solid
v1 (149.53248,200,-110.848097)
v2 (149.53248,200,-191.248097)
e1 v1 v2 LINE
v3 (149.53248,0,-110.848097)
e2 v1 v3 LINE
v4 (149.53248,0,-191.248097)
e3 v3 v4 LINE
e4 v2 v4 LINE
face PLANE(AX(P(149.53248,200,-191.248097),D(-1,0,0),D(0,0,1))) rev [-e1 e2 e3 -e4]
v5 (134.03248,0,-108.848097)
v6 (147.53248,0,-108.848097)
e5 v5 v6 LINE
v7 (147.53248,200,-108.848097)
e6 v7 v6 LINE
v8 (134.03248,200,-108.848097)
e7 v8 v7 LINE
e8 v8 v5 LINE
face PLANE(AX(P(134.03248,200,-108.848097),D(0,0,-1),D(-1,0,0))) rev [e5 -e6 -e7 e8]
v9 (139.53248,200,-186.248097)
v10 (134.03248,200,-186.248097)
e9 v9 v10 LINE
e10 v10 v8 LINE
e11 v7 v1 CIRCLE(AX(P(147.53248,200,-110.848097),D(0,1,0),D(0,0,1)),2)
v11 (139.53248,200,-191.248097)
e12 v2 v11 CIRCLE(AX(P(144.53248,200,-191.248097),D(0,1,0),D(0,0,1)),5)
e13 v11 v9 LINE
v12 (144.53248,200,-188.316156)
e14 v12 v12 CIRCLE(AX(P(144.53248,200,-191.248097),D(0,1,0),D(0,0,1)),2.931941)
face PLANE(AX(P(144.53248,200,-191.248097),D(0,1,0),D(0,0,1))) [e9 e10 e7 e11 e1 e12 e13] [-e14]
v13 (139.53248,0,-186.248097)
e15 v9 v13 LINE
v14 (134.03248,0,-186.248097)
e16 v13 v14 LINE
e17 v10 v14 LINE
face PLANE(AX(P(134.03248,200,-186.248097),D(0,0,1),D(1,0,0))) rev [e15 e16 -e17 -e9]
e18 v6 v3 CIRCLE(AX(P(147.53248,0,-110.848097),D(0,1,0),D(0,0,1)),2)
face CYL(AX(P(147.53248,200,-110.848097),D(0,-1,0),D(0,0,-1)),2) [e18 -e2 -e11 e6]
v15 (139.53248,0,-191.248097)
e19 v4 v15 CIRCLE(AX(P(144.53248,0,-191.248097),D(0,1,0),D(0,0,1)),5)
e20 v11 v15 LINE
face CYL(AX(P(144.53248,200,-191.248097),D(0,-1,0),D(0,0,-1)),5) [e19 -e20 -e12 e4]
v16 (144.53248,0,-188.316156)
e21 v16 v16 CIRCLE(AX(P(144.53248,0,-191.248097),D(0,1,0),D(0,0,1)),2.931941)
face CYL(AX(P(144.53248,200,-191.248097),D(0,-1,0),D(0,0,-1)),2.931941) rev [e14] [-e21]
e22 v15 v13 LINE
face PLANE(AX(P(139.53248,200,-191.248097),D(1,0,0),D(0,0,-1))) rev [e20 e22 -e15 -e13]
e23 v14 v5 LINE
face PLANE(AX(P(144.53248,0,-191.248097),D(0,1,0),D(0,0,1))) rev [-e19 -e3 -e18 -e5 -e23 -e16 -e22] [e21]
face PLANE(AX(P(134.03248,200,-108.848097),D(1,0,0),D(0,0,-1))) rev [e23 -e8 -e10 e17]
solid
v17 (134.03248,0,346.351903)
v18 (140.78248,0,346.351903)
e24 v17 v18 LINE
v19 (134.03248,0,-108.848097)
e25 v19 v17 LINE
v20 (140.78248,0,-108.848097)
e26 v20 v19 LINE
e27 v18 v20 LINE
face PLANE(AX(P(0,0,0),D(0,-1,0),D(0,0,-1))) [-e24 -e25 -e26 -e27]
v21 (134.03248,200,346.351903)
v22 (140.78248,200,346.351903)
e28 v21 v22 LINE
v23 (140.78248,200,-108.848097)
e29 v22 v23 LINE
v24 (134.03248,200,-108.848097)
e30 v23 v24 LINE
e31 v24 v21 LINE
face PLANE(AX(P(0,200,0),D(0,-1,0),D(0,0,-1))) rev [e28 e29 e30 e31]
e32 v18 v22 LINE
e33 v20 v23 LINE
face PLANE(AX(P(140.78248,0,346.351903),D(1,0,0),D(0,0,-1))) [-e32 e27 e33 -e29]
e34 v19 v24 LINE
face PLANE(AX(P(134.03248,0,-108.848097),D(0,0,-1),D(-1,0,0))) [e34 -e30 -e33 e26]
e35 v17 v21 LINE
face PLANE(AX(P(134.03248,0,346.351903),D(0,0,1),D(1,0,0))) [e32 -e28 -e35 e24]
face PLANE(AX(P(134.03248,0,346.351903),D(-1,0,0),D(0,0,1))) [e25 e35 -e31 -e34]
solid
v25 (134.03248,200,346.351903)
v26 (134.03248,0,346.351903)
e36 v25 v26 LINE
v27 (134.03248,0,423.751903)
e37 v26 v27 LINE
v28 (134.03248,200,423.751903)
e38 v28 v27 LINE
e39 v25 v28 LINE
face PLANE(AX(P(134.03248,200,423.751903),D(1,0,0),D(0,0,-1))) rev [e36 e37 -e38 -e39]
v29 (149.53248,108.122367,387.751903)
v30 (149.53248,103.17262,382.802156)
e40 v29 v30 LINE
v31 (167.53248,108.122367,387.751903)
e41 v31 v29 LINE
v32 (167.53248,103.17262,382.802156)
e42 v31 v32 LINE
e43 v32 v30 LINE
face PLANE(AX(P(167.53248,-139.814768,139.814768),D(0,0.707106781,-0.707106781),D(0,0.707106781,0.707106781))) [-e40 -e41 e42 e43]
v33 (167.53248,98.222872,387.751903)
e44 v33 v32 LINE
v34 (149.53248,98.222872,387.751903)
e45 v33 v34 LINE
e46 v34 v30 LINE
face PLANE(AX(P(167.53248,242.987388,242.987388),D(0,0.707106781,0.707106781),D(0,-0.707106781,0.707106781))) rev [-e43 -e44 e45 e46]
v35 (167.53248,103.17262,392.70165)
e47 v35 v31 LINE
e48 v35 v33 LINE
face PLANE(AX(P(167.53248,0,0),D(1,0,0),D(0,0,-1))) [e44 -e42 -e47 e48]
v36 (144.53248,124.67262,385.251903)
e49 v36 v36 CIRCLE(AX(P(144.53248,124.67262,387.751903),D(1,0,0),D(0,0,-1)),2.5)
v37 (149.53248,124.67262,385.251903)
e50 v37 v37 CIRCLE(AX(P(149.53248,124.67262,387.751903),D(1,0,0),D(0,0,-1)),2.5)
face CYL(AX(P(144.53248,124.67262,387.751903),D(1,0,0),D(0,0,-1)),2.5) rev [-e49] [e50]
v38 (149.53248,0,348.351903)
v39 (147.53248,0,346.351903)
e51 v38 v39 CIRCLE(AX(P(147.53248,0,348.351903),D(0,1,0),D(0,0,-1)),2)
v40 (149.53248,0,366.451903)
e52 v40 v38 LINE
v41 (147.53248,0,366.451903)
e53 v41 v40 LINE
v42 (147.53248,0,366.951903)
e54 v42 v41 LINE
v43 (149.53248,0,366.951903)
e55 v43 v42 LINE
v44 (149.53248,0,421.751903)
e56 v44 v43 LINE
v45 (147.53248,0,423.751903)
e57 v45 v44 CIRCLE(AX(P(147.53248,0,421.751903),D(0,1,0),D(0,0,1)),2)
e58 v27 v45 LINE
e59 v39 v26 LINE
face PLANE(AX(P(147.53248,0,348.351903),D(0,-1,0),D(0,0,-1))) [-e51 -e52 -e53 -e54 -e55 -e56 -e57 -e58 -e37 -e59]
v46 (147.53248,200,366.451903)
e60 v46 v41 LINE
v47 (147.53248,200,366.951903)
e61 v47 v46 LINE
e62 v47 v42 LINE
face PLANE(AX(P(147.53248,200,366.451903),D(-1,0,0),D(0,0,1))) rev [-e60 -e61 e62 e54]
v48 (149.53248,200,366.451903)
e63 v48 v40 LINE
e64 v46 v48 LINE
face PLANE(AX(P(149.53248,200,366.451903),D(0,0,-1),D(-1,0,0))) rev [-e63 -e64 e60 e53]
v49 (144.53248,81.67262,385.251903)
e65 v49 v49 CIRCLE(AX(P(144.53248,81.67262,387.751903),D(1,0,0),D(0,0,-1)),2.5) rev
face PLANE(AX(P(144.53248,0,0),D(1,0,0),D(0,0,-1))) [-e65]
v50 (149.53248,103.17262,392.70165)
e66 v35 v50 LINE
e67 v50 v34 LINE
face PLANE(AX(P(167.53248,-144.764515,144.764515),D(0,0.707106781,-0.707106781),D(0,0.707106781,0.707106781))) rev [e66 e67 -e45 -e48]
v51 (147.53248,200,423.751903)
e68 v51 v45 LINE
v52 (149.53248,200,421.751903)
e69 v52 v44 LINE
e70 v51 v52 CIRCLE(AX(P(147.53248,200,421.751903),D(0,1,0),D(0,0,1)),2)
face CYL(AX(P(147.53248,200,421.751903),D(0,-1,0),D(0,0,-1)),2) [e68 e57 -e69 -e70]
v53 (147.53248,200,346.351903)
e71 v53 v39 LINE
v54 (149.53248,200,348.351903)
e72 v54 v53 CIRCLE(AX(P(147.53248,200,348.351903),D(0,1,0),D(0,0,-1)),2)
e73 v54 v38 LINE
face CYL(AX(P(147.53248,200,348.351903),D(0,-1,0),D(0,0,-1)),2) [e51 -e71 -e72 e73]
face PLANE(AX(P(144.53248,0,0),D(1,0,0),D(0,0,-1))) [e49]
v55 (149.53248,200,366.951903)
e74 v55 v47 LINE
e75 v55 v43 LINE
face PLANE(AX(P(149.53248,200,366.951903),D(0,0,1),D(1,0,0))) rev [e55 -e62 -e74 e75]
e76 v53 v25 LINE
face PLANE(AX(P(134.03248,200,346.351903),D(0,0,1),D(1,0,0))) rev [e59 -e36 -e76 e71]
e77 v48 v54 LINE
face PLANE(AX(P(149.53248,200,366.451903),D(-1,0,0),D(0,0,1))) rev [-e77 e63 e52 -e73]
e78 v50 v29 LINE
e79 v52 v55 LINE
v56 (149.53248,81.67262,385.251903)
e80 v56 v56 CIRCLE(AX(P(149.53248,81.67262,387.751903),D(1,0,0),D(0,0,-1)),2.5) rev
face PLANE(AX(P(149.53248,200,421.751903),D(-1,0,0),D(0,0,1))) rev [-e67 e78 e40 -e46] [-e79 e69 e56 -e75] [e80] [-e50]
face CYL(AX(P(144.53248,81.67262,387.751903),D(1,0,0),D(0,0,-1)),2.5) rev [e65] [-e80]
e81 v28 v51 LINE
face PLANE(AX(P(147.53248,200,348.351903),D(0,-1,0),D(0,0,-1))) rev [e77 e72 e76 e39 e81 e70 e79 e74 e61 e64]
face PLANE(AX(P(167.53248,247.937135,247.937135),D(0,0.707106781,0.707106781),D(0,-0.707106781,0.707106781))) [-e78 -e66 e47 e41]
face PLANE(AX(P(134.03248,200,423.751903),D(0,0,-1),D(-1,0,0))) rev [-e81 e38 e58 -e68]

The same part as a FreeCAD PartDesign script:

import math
import FreeCAD as App
import Part
import Sketcher

doc = App.newDocument("Part")
body = doc.addObject("PartDesign::Body", "Body")

# Sketch on XZ plane
sketch1 = body.newObject("Sketcher::SketchObject", "Sketch")
sketch1.AttachmentSupport = (doc.getObject("XZ_Plane"), [""])
sketch1.MapMode = "FlatFace"
sketch1.addGeometry([
    Part.LineSegment(App.Vector(134.03248, -108.848097, 0), App.Vector(147.53248, -108.848097, 0)),  # 0
    Part.ArcOfCircle(Part.Circle(App.Vector(147.53248, -110.848097, 0), App.Vector(0, 0, 1), 2), math.radians(0), math.radians(90)),  # 1
    Part.LineSegment(App.Vector(149.53248, -110.848097, 0), App.Vector(149.53248, -191.248097, 0)),  # 2
    Part.ArcOfCircle(Part.Circle(App.Vector(144.53248, -191.248097, 0), App.Vector(0, 0, 1), 5), math.radians(180), math.radians(360)),  # 3
    Part.LineSegment(App.Vector(139.53248, -191.248097, 0), App.Vector(139.53248, -186.248097, 0)),  # 4
    Part.LineSegment(App.Vector(139.53248, -186.248097, 0), App.Vector(134.03248, -186.248097, 0)),  # 5
    Part.LineSegment(App.Vector(134.03248, -186.248097, 0), App.Vector(134.03248, -108.848097, 0)),  # 6
    Part.Circle(App.Vector(144.53248, -191.248097, 0), App.Vector(0, 0, 1), 2.931941),  # 7
], False)
sketch1.addConstraint([
    Sketcher.Constraint("Tangent", 0, 2, 1, 2),
    Sketcher.Constraint("Tangent", 1, 1, 2, 1),
    Sketcher.Constraint("Tangent", 2, 2, 3, 2),
    Sketcher.Constraint("Tangent", 3, 1, 4, 1),
    Sketcher.Constraint("Coincident", 4, 2, 5, 1),
    Sketcher.Constraint("Coincident", 5, 2, 6, 1),
    Sketcher.Constraint("Coincident", 6, 2, 0, 1),
    Sketcher.Constraint("Horizontal", 0),
    Sketcher.Constraint("Vertical", 2),
    Sketcher.Constraint("Vertical", 4),
    Sketcher.Constraint("Horizontal", 5),
    Sketcher.Constraint("Vertical", 6),
    Sketcher.Constraint("Coincident", 7, 3, 3, 3),
    Sketcher.Constraint("Radius", 1, 2.0),
    Sketcher.Constraint("Radius", 3, 5.0),
    Sketcher.Constraint("DistanceY", 4, 1, 4, 2, 5.0),
    Sketcher.Constraint("DistanceX", 0, 1, 0, 2, 13.5),
    Sketcher.Constraint("DistanceY", 2, 2, 2, 1, 80.4),
    Sketcher.Constraint("Diameter", 7, 5.863881),
    Sketcher.Constraint("DistanceX", -1, 1, 1, 3, 147.53248),
    Sketcher.Constraint("DistanceY", 1, 3, -1, 1, 110.848097),
])
pad1 = body.newObject("PartDesign::Pad", "Pad")
pad1.Profile = sketch1
pad1.Length = 200
pad1.Reversed = True
body2 = doc.addObject("PartDesign::Body", "Body001")

# Sketch on XZ plane
sketch2 = body2.newObject("Sketcher::SketchObject", "Sketch001")
sketch2.AttachmentSupport = (doc.getObject("XZ_Plane001"), [""])
sketch2.MapMode = "FlatFace"
sketch2.addGeometry([
    Part.LineSegment(App.Vector(134.03248, 423.751903, 0), App.Vector(147.53248, 423.751903, 0)),  # 0
    Part.ArcOfCircle(Part.Circle(App.Vector(147.53248, 421.751903, 0), App.Vector(0, 0, 1), 2), math.radians(0), math.radians(90)),  # 1
    Part.LineSegment(App.Vector(149.53248, 421.751903, 0), App.Vector(149.53248, 366.951903, 0)),  # 2
    Part.LineSegment(App.Vector(149.53248, 366.951903, 0), App.Vector(147.53248, 366.951903, 0)),  # 3
    Part.LineSegment(App.Vector(147.53248, 366.951903, 0), App.Vector(147.53248, 366.451903, 0)),  # 4
    Part.LineSegment(App.Vector(147.53248, 366.451903, 0), App.Vector(149.53248, 366.451903, 0)),  # 5
    Part.LineSegment(App.Vector(149.53248, 366.451903, 0), App.Vector(149.53248, 348.351903, 0)),  # 6
    Part.ArcOfCircle(Part.Circle(App.Vector(147.53248, 348.351903, 0), App.Vector(0, 0, 1), 2), math.radians(-90), math.radians(0)),  # 7
    Part.LineSegment(App.Vector(147.53248, 346.351903, 0), App.Vector(134.03248, 346.351903, 0)),  # 8
    Part.LineSegment(App.Vector(134.03248, 346.351903, 0), App.Vector(134.03248, 423.751903, 0)),  # 9
], False)
sketch2.addConstraint([
    Sketcher.Constraint("Tangent", 0, 2, 1, 2),
    Sketcher.Constraint("Tangent", 1, 1, 2, 1),
    Sketcher.Constraint("Coincident", 2, 2, 3, 1),
    Sketcher.Constraint("Coincident", 3, 2, 4, 1),
    Sketcher.Constraint("Coincident", 4, 2, 5, 1),
    Sketcher.Constraint("Coincident", 5, 2, 6, 1),
    Sketcher.Constraint("Tangent", 6, 2, 7, 2),
    Sketcher.Constraint("Tangent", 7, 1, 8, 1),
    Sketcher.Constraint("Coincident", 8, 2, 9, 1),
    Sketcher.Constraint("Coincident", 9, 2, 0, 1),
    Sketcher.Constraint("Horizontal", 0),
    Sketcher.Constraint("Vertical", 2),
    Sketcher.Constraint("Horizontal", 3),
    Sketcher.Constraint("Vertical", 4),
    Sketcher.Constraint("Horizontal", 5),
    Sketcher.Constraint("Vertical", 6),
    Sketcher.Constraint("Horizontal", 8),
    Sketcher.Constraint("Vertical", 9),
    Sketcher.Constraint("Equal", 1, 7),
    Sketcher.Constraint("Vertical", 1, 3, 7, 3),
    Sketcher.Constraint("Vertical", 0, 2, 3, 2),
    Sketcher.Constraint("Radius", 1, 2.0),
    Sketcher.Constraint("DistanceX", 0, 1, 0, 2, 13.5),
    Sketcher.Constraint("DistanceY", 2, 2, 2, 1, 54.8),
    Sketcher.Constraint("DistanceY", 4, 2, 4, 1, 0.5),
    Sketcher.Constraint("DistanceY", 6, 2, 6, 1, 18.1),
    Sketcher.Constraint("DistanceX", -1, 1, 1, 3, 147.53248),
    Sketcher.Constraint("DistanceY", -1, 1, 1, 3, 421.751903),
])
pad2 = body2.newObject("PartDesign::Pad", "Pad001")
pad2.Profile = sketch2
pad2.Length = 200
pad2.Reversed = True

# Sketch on YZ plane
sketch3 = body2.newObject("Sketcher::SketchObject", "Sketch002")
sketch3.AttachmentSupport = (doc.getObject("YZ_Plane001"), [""])
sketch3.MapMode = "FlatFace"
sketch3.AttachmentOffset = App.Placement(App.Vector(0, 0, 149.53248), App.Rotation())
sketch3.addGeometry([
    Part.LineSegment(App.Vector(103.17262, 382.802156, 0), App.Vector(108.122367, 387.751903, 0)),
    Part.LineSegment(App.Vector(108.122367, 387.751903, 0), App.Vector(103.17262, 392.70165, 0)),
    Part.LineSegment(App.Vector(103.17262, 392.70165, 0), App.Vector(98.222872, 387.751903, 0)),
    Part.LineSegment(App.Vector(98.222872, 387.751903, 0), App.Vector(103.17262, 382.802156, 0)),
], False)
sketch3.addConstraint([
    Sketcher.Constraint("Coincident", 0, 2, 1, 1),
    Sketcher.Constraint("Coincident", 1, 2, 2, 1),
    Sketcher.Constraint("Coincident", 2, 2, 3, 1),
    Sketcher.Constraint("Coincident", 3, 2, 0, 1),
    Sketcher.Constraint("Perpendicular", 0, 1),
    Sketcher.Constraint("Perpendicular", 1, 2),
    Sketcher.Constraint("Perpendicular", 2, 3),
    Sketcher.Constraint("Horizontal", 0, 2, 2, 2),
    Sketcher.Constraint("Vertical", 1, 2, 3, 2),
    Sketcher.Constraint("Distance", 0, 7.0),
    Sketcher.Constraint("DistanceX", -1, 1, 1, 2, 103.17262),
    Sketcher.Constraint("DistanceY", -1, 1, 1, 2, 392.70165),
])
pad3 = body2.newObject("PartDesign::Pad", "Pad002")
pad3.Profile = sketch3
pad3.Length = 18

# Sketch on YZ plane
sketch4 = body2.newObject("Sketcher::SketchObject", "Sketch003")
sketch4.AttachmentSupport = (doc.getObject("YZ_Plane001"), [""])
sketch4.MapMode = "FlatFace"
sketch4.AttachmentOffset = App.Placement(App.Vector(0, 0, 149.53248), App.Rotation())
sketch4.addGeometry([
    Part.Circle(App.Vector(124.67262, 387.751903, 0), App.Vector(0, 0, 1), 2.5),
    Part.Circle(App.Vector(81.67262, 387.751903, 0), App.Vector(0, 0, 1), 2.5),
], False)
sketch4.addConstraint([
    Sketcher.Constraint("Equal", 0, 1),
    Sketcher.Constraint("Horizontal", 0, 3, 1, 3),
    Sketcher.Constraint("Diameter", 0, 5.0),
    Sketcher.Constraint("DistanceX", 1, 3, 0, 3, 43.0),
    Sketcher.Constraint("DistanceX", -1, 1, 0, 3, 124.67262),
    Sketcher.Constraint("DistanceY", -1, 1, 0, 3, 387.751903),
])
pocket1 = body2.newObject("PartDesign::Pocket", "Pocket")
pocket1.Profile = sketch4
pocket1.Length = 5
body3 = doc.addObject("PartDesign::Body", "Body002")

# Sketch on XZ plane
sketch5 = body3.newObject("Sketcher::SketchObject", "Sketch004")
sketch5.AttachmentSupport = (doc.getObject("XZ_Plane002"), [""])
sketch5.MapMode = "FlatFace"
sketch5.AttachmentOffset = App.Placement(App.Vector(0, 0, -200), App.Rotation())
sketch5.addGeometry([
    Part.LineSegment(App.Vector(134.03248, -108.848097, 0), App.Vector(134.03248, 346.351903, 0)),
    Part.LineSegment(App.Vector(134.03248, 346.351903, 0), App.Vector(140.78248, 346.351903, 0)),
    Part.LineSegment(App.Vector(140.78248, 346.351903, 0), App.Vector(140.78248, -108.848097, 0)),
    Part.LineSegment(App.Vector(140.78248, -108.848097, 0), App.Vector(134.03248, -108.848097, 0)),
], False)
sketch5.addConstraint([
    Sketcher.Constraint("Coincident", 0, 2, 1, 1),
    Sketcher.Constraint("Coincident", 1, 2, 2, 1),
    Sketcher.Constraint("Coincident", 2, 2, 3, 1),
    Sketcher.Constraint("Coincident", 3, 2, 0, 1),
    Sketcher.Constraint("Vertical", 0),
    Sketcher.Constraint("Horizontal", 1),
    Sketcher.Constraint("Vertical", 2),
    Sketcher.Constraint("Horizontal", 3),
    Sketcher.Constraint("DistanceY", 0, 1, 0, 2, 455.2),
    Sketcher.Constraint("DistanceX", 1, 1, 1, 2, 6.75),
    Sketcher.Constraint("DistanceX", -1, 1, 0, 2, 134.03248),
    Sketcher.Constraint("DistanceY", -1, 1, 0, 2, 346.351903),
])
pad4 = body3.newObject("PartDesign::Pad", "Pad003")
pad4.Profile = sketch5
pad4.Length = 200

doc.recompute()
